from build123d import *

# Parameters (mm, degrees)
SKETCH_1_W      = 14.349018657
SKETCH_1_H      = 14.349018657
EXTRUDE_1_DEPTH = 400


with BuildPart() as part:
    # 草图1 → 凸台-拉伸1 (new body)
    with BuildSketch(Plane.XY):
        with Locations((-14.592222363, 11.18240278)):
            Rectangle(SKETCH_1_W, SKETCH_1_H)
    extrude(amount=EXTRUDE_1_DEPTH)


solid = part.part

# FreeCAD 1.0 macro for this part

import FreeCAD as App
import Part
import Sketcher

V = App.Vector

doc = App.newDocument("Part")
body = doc.addObject("PartDesign::Body", "Body")

# Sketch on XY plane
sketch1 = doc.addObject("Sketcher::SketchObject", "Sketch")
body.addObject(sketch1)
sketch1.AttachmentSupport = (doc.XY_Plane, [""])
sketch1.MapMode = "FlatFace"
sketch1.addGeometry([
    Part.LineSegment(V(-21.766732, 18.356912, 0), V(-21.766732, 4.007893, 0)),
    Part.LineSegment(V(-21.766732, 4.007893, 0), V(-7.417713, 4.007893, 0)),
    Part.LineSegment(V(-7.417713, 4.007893, 0), V(-7.417713, 18.356912, 0)),
    Part.LineSegment(V(-7.417713, 18.356912, 0), V(-21.766732, 18.356912, 0)),
], False)
sketch1.addConstraint([
    Sketcher.Constraint("Coincident", 0, 2, 1, 1),
    Sketcher.Constraint("Coincident", 1, 2, 2, 1),
    Sketcher.Constraint("Coincident", 2, 2, 3, 1),
    Sketcher.Constraint("Coincident", 3, 2, 0, 1),
    Sketcher.Constraint("Vertical", 0),
    Sketcher.Constraint("Horizontal", 1),
    Sketcher.Constraint("Vertical", 2),
    Sketcher.Constraint("Horizontal", 3),
    Sketcher.Constraint("Equal", 3, 0),
    Sketcher.Constraint("DistanceX", 1, 1, 1, 2, 14.349019),
    Sketcher.Constraint("DistanceX", 0, 2, -1, 1, 21.766732),
    Sketcher.Constraint("DistanceY", -1, 1, 0, 2, 4.007893),
])
pad1 = doc.addObject("PartDesign::Pad", "Pad")
body.addObject(pad1)
pad1.Profile = sketch1
pad1.Length = 400

doc.recompute()
